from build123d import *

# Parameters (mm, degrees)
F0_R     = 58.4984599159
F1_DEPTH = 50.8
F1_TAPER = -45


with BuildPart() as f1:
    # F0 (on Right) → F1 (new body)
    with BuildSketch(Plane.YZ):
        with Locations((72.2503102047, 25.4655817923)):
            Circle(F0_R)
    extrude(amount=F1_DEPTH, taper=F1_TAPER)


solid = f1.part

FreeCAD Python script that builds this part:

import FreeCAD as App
import Part
import Sketcher
Q = App.Units.Quantity

doc = App.newDocument("Part")
body = doc.addObject("PartDesign::Body", "Body")

# Sketch on YZ plane
sketch1 = body.newObject("Sketcher::SketchObject", "Sketch")
sketch1.AttachmentSupport = (doc.getObject("YZ_Plane"), [""])
sketch1.MapMode = "FlatFace"
sketch1.addGeometry(Part.Circle(App.Vector(72, 25, 0), App.Vector(0, 0, 1), 58), False)
sketch1.addConstraint([
    Sketcher.Constraint("Diameter", 0, Q("116.99692 mm")),
    Sketcher.Constraint("DistanceX", -1, 1, 0, 3, Q("72.25031 mm")),
    Sketcher.Constraint("DistanceY", -1, 1, 0, 3, Q("25.465582 mm")),
])
pad1 = body.newObject("PartDesign::Pad", "Pad")
pad1.Profile = sketch1
pad1.Length = Q("2 in")
pad1.TaperAngle = 45

doc.recompute()
